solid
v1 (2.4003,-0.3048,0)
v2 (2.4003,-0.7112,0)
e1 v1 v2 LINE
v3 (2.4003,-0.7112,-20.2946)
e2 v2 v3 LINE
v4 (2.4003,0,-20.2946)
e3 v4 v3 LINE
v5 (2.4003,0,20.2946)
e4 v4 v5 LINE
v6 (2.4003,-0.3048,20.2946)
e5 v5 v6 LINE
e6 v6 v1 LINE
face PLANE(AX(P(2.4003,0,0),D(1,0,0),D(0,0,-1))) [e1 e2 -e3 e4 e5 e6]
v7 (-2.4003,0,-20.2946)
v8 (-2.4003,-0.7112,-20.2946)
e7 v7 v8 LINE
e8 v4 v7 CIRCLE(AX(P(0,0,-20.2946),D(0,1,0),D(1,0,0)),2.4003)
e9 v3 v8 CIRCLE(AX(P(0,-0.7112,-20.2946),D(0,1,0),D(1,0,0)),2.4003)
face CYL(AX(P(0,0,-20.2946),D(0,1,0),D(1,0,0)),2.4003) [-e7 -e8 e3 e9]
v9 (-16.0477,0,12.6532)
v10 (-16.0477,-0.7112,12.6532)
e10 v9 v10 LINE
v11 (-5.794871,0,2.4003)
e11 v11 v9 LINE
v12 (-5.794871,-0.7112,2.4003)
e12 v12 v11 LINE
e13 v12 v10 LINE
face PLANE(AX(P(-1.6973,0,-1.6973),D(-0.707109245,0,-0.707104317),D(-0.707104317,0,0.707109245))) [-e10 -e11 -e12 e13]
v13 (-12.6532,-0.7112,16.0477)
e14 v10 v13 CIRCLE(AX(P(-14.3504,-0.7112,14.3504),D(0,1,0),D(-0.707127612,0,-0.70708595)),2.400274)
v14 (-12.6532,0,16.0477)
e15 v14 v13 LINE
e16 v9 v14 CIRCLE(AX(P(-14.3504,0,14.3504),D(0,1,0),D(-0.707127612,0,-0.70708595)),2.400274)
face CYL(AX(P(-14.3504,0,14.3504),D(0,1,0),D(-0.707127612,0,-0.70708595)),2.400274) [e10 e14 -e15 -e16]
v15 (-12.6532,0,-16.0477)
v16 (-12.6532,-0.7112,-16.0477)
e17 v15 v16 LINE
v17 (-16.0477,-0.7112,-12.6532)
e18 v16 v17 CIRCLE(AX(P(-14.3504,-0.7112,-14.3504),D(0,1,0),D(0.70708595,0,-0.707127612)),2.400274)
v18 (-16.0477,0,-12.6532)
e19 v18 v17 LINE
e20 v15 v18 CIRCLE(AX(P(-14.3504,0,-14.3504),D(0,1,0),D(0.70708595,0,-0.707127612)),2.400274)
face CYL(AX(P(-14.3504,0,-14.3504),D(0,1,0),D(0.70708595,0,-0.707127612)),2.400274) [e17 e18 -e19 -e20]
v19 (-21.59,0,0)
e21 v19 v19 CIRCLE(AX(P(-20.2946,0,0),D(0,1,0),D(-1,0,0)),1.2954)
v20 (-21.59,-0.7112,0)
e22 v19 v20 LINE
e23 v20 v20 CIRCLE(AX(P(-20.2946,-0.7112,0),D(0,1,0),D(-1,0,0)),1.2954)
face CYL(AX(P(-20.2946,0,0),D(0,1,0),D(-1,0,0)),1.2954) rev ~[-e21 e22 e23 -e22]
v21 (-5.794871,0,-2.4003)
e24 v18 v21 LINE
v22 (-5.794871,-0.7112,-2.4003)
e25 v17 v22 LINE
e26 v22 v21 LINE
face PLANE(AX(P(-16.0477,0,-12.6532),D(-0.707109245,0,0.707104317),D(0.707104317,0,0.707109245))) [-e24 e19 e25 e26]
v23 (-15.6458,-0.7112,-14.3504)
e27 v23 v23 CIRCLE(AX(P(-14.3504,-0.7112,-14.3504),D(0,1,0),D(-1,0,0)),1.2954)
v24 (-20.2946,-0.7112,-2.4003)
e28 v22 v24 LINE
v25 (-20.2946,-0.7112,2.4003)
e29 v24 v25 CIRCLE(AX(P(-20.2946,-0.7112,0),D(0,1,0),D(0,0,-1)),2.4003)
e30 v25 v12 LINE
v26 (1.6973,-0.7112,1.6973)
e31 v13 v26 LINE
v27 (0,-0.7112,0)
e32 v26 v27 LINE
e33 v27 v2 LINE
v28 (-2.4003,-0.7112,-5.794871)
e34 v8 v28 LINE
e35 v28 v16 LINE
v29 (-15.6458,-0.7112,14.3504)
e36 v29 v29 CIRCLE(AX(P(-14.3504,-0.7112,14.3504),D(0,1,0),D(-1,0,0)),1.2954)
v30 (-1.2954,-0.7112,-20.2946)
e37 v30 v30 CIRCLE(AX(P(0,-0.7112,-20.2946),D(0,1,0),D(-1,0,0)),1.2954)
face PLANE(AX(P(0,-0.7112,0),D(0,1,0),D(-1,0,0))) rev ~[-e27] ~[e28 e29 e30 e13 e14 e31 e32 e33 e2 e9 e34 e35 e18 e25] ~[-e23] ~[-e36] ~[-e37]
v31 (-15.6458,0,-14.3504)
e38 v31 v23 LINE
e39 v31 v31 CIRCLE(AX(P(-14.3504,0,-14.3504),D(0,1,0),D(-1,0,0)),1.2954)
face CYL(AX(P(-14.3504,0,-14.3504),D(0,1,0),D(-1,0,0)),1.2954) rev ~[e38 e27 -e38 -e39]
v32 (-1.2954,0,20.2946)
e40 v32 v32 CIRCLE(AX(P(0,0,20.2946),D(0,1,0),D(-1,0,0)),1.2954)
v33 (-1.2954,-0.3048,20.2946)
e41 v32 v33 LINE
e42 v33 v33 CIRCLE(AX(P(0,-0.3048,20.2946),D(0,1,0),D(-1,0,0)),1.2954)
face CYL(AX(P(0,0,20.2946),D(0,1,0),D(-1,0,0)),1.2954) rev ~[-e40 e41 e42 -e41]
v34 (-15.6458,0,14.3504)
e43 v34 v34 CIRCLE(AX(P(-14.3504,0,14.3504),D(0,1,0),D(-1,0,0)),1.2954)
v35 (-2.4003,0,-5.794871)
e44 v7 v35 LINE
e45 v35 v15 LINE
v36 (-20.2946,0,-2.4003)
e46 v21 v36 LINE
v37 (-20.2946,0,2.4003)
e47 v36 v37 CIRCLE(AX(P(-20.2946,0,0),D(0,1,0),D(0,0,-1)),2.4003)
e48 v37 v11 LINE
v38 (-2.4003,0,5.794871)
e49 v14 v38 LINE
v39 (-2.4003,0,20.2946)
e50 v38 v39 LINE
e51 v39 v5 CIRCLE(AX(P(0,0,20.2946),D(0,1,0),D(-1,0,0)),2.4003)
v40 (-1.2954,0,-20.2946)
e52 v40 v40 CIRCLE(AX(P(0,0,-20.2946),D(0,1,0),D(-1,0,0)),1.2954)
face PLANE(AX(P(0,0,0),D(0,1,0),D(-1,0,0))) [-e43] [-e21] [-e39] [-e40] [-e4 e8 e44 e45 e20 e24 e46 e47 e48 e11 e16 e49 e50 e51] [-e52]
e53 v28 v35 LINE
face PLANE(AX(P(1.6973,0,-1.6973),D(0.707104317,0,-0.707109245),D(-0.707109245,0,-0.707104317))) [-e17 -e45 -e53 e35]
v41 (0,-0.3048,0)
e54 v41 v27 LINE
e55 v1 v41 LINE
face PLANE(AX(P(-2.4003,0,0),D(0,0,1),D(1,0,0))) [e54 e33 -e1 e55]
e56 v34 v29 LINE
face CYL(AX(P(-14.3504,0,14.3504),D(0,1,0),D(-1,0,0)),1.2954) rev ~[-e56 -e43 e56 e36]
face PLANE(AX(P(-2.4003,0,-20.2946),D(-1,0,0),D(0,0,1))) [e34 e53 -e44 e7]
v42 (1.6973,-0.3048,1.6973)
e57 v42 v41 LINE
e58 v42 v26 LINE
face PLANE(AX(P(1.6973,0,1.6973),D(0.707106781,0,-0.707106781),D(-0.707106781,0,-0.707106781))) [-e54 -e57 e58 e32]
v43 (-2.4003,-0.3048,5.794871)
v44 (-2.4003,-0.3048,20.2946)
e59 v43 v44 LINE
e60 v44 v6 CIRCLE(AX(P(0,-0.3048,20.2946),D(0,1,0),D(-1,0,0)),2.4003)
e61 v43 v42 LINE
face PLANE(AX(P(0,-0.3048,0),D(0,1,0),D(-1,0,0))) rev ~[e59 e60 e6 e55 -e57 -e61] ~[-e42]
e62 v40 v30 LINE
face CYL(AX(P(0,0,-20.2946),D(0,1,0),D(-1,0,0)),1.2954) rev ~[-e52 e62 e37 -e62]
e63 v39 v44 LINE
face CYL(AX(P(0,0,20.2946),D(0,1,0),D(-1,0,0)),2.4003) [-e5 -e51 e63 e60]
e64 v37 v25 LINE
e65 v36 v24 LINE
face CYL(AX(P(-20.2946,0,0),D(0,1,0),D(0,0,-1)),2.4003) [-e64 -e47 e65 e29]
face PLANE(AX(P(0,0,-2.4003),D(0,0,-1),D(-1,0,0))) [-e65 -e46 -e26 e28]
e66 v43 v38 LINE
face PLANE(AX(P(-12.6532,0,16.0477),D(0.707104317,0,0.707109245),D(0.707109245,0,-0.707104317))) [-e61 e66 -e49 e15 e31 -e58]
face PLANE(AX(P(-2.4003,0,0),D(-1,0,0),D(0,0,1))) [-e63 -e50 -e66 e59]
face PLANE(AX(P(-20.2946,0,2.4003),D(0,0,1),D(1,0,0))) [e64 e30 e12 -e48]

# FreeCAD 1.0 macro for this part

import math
import FreeCAD as App
import Part
import Sketcher
Q = App.Units.Quantity

doc = App.newDocument("Part")
body = doc.addObject("PartDesign::Body", "Body")

# Sketch on XZ plane
sketch1 = body.newObject("Sketcher::SketchObject", "Sketch")
sketch1.AttachmentSupport = (doc.getObject("XZ_Plane"), [""])
sketch1.MapMode = "FlatFace"
sketch1.addGeometry(Part.LineSegment(App.Vector(-2.4, 0, 0), App.Vector(-2.4, 20.3, 0)), False)
sketch1.addGeometry(Part.ArcOfCircle(Part.Circle(App.Vector(0, 20.3, 0), App.Vector(0, 0, 1), 2.4), math.radians(0), math.radians(180)), False)
sketch1.addGeometry(Part.LineSegment(App.Vector(2.4, 20.3, 0), App.Vector(2.4, 0, 0)), False)
sketch1.addGeometry(Part.LineSegment(App.Vector(2.4, 0, 0), App.Vector(-2.4, 0, 0)), False)
sketch1.addGeometry(Part.Circle(App.Vector(0, 20.3, 0), App.Vector(0, 0, 1), 1.3), False)
sketch1.addConstraint(Sketcher.Constraint("Tangent", 0, 2, 1, 2))
sketch1.addConstraint(Sketcher.Constraint("Tangent", 1, 1, 2, 1))
sketch1.addConstraint(Sketcher.Constraint("Coincident", 2, 2, 3, 1))
sketch1.addConstraint(Sketcher.Constraint("Coincident", 3, 2, 0, 1))
sketch1.addConstraint(Sketcher.Constraint("Vertical", 0))
sketch1.addConstraint(Sketcher.Constraint("Vertical", 2))
sketch1.addConstraint(Sketcher.Constraint("Horizontal", 3))
sketch1.addConstraint(Sketcher.Constraint("Coincident", 4, 3, 1, 3))
sketch1.addConstraint(Sketcher.Constraint("Symmetric", 2, 2, 3, 2, -1, 1))
sketch1.addConstraint(Sketcher.Constraint("Diameter", 4, Q("0.102 in")))
sketch1.addConstraint(Sketcher.Constraint("Radius", 1, Q("0.0945 in")))
sketch1.addConstraint(Sketcher.Constraint("DistanceY", 0, 1, 0, 2, Q("0.799 in")))
pad1 = body.newObject("PartDesign::Pad", "Pad")
pad1.Profile = sketch1
pad1.Length = Q("0.012 in")

# Sketch on XZ plane
sketch2 = body.newObject("Sketcher::SketchObject", "Sketch001")
sketch2.AttachmentSupport = (doc.getObject("XZ_Plane"), [""])
sketch2.MapMode = "FlatFace"
sketch2.addGeometry(Part.LineSegment(App.Vector(-1.7, -1.7, 0), App.Vector(-16, 12.7, 0)), False)
sketch2.addGeometry(Part.ArcOfCircle(Part.Circle(App.Vector(-14.4, 14.4, 0), App.Vector(0, 0, 1), 2.4), math.radians(45), math.radians(225)), False)
sketch2.addGeometry(Part.LineSegment(App.Vector(-12.7, 16, 0), App.Vector(1.7, 1.7, 0)), False)
sketch2.addGeometry(Part.LineSegment(App.Vector(1.7, 1.7, 0), App.Vector(-1.7, -1.7, 0)), False)
sketch2.addGeometry(Part.Circle(App.Vector(-14.4, 14.4, 0), App.Vector(0, 0, 1), 1.3), False)
sketch2.addConstraint(Sketcher.Constraint("Tangent", 0, 2, 1, 2))
sketch2.addConstraint(Sketcher.Constraint("Tangent", 1, 1, 2, 1))
sketch2.addConstraint(Sketcher.Constraint("Coincident", 2, 2, 3, 1))
sketch2.addConstraint(Sketcher.Constraint("Coincident", 3, 2, 0, 1))
sketch2.addConstraint(Sketcher.Constraint("Coincident", 4, 3, 1, 3))
sketch2.addConstraint(Sketcher.Constraint("Symmetric", 2, 2, 3, 2, -1, 1))
sketch2.addConstraint(Sketcher.Constraint("Parallel", 0, 2))
sketch2.addConstraint(Sketcher.Constraint("Perpendicular", 2, 3))
sketch2.addConstraint(Sketcher.Constraint("Diameter", 4, Q("0.102 in")))
sketch2.addConstraint(Sketcher.Constraint("Angle", 0, Q("134.9998 deg")))
sketch2.addConstraint(Sketcher.Constraint("Radius", 1, Q("0.0945 in")))
sketch2.addConstraint(Sketcher.Constraint("Distance", 0, Q("0.799 in")))
pad2 = body.newObject("PartDesign::Pad", "Pad001")
pad2.Profile = sketch2
pad2.Length = Q("0.028 in")

# Sketch on XZ plane
sketch3 = body.newObject("Sketcher::SketchObject", "Sketch002")
sketch3.AttachmentSupport = (doc.getObject("XZ_Plane"), [""])
sketch3.MapMode = "FlatFace"
sketch3.addGeometry(Part.LineSegment(App.Vector(0, -2.4, 0), App.Vector(-20.3, -2.4, 0)), False)
sketch3.addGeometry(Part.ArcOfCircle(Part.Circle(App.Vector(-20.3, 0, 0), App.Vector(0, 0, 1), 2.4), math.radians(90), math.radians(270)), False)
sketch3.addGeometry(Part.LineSegment(App.Vector(-20.3, 2.4, 0), App.Vector(0, 2.4, 0)), False)
sketch3.addGeometry(Part.LineSegment(App.Vector(0, 2.4, 0), App.Vector(0, -2.4, 0)), False)
sketch3.addGeometry(Part.Circle(App.Vector(-20.3, 0, 0), App.Vector(0, 0, 1), 1.3), False)
sketch3.addConstraint(Sketcher.Constraint("Tangent", 0, 2, 1, 2))
sketch3.addConstraint(Sketcher.Constraint("Tangent", 1, 1, 2, 1))
sketch3.addConstraint(Sketcher.Constraint("Coincident", 2, 2, 3, 1))
sketch3.addConstraint(Sketcher.Constraint("Coincident", 3, 2, 0, 1))
sketch3.addConstraint(Sketcher.Constraint("Horizontal", 0))
sketch3.addConstraint(Sketcher.Constraint("Horizontal", 2))
sketch3.addConstraint(Sketcher.Constraint("Vertical", 3))
sketch3.addConstraint(Sketcher.Constraint("Coincident", 4, 3, 1, 3))
sketch3.addConstraint(Sketcher.Constraint("Symmetric", 2, 2, 3, 2, -1, 1))
sketch3.addConstraint(Sketcher.Constraint("Diameter", 4, Q("0.102 in")))
sketch3.addConstraint(Sketcher.Constraint("Radius", 1, Q("0.0945 in")))
sketch3.addConstraint(Sketcher.Constraint("DistanceX", 0, 2, 0, 1, Q("0.799 in")))
pad3 = body.newObject("PartDesign::Pad", "Pad002")
pad3.Profile = sketch3
pad3.Length = Q("0.028 in")

# Sketch on XZ plane
sketch4 = body.newObject("Sketcher::SketchObject", "Sketch003")
sketch4.AttachmentSupport = (doc.getObject("XZ_Plane"), [""])
sketch4.MapMode = "FlatFace"
sketch4.addGeometry(Part.LineSegment(App.Vector(1.7, -1.7, 0), App.Vector(-12.7, -16, 0)), False)
sketch4.addGeometry(Part.ArcOfCircle(Part.Circle(App.Vector(-14.4, -14.4, 0), App.Vector(0, 0, 1), 2.4), math.radians(135), math.radians(315)), False)
sketch4.addGeometry(Part.LineSegment(App.Vector(-16, -12.7, 0), App.Vector(-1.7, 1.7, 0)), False)
sketch4.addGeometry(Part.LineSegment(App.Vector(-1.7, 1.7, 0), App.Vector(1.7, -1.7, 0)), False)
sketch4.addGeometry(Part.Circle(App.Vector(-14.4, -14.4, 0), App.Vector(0, 0, 1), 1.3), False)
sketch4.addConstraint(Sketcher.Constraint("Tangent", 0, 2, 1, 2))
sketch4.addConstraint(Sketcher.Constraint("Tangent", 1, 1, 2, 1))
sketch4.addConstraint(Sketcher.Constraint("Coincident", 2, 2, 3, 1))
sketch4.addConstraint(Sketcher.Constraint("Coincident", 3, 2, 0, 1))
sketch4.addConstraint(Sketcher.Constraint("Coincident", 4, 3, 1, 3))
sketch4.addConstraint(Sketcher.Constraint("Symmetric", 2, 2, 3, 2, -1, 1))
sketch4.addConstraint(Sketcher.Constraint("Parallel", 0, 2))
sketch4.addConstraint(Sketcher.Constraint("Perpendicular", 2, 3))
sketch4.addConstraint(Sketcher.Constraint("Diameter", 4, Q("0.102 in")))
sketch4.addConstraint(Sketcher.Constraint("Angle", 0, Q("-135.0002 deg")))
sketch4.addConstraint(Sketcher.Constraint("Radius", 1, Q("0.0945 in")))
sketch4.addConstraint(Sketcher.Constraint("Distance", 0, Q("0.799 in")))
pad4 = body.newObject("PartDesign::Pad", "Pad003")
pad4.Profile = sketch4
pad4.Length = Q("0.028 in")

# Sketch on XZ plane
sketch5 = body.newObject("Sketcher::SketchObject", "Sketch004")
sketch5.AttachmentSupport = (doc.getObject("XZ_Plane"), [""])
sketch5.MapMode = "FlatFace"
sketch5.addGeometry(Part.ArcOfCircle(Part.Circle(App.Vector(0, -20.3, 0), App.Vector(0, 0, 1), 2.4), math.radians(180), math.radians(360)), False)
sketch5.addGeometry(Part.LineSegment(App.Vector(-2.4, -20.3, 0), App.Vector(-2.4, 0, 0)), False)
sketch5.addGeometry(Part.LineSegment(App.Vector(-2.4, 0, 0), App.Vector(2.4, 0, 0)), False)
sketch5.addGeometry(Part.LineSegment(App.Vector(2.4, 0, 0), App.Vector(2.4, -20.3, 0)), False)
sketch5.addGeometry(Part.Circle(App.Vector(0, -20.3, 0), App.Vector(0, 0, 1), 1.3), False)
sketch5.addConstraint(Sketcher.Constraint("Tangent", 0, 1, 1, 1))
sketch5.addConstraint(Sketcher.Constraint("Coincident", 1, 2, 2, 1))
sketch5.addConstraint(Sketcher.Constraint("Coincident", 2, 2, 3, 1))
sketch5.addConstraint(Sketcher.Constraint("Tangent", 3, 2, 0, 2))
sketch5.addConstraint(Sketcher.Constraint("Vertical", 1))
sketch5.addConstraint(Sketcher.Constraint("Horizontal", 2))
sketch5.addConstraint(Sketcher.Constraint("Vertical", 3))
sketch5.addConstraint(Sketcher.Constraint("Coincident", 4, 3, 0, 3))
sketch5.addConstraint(Sketcher.Constraint("Symmetric", 1, 2, 2, 2, -1, 1))
sketch5.addConstraint(Sketcher.Constraint("Diameter", 4, Q("0.102 in")))
sketch5.addConstraint(Sketcher.Constraint("Radius", 0, Q("0.0945 in")))
sketch5.addConstraint(Sketcher.Constraint("DistanceY", 1, 1, 1, 2, Q("0.799 in")))
pad5 = body.newObject("PartDesign::Pad", "Pad004")
pad5.Profile = sketch5
pad5.Length = Q("0.028 in")

doc.recompute()
